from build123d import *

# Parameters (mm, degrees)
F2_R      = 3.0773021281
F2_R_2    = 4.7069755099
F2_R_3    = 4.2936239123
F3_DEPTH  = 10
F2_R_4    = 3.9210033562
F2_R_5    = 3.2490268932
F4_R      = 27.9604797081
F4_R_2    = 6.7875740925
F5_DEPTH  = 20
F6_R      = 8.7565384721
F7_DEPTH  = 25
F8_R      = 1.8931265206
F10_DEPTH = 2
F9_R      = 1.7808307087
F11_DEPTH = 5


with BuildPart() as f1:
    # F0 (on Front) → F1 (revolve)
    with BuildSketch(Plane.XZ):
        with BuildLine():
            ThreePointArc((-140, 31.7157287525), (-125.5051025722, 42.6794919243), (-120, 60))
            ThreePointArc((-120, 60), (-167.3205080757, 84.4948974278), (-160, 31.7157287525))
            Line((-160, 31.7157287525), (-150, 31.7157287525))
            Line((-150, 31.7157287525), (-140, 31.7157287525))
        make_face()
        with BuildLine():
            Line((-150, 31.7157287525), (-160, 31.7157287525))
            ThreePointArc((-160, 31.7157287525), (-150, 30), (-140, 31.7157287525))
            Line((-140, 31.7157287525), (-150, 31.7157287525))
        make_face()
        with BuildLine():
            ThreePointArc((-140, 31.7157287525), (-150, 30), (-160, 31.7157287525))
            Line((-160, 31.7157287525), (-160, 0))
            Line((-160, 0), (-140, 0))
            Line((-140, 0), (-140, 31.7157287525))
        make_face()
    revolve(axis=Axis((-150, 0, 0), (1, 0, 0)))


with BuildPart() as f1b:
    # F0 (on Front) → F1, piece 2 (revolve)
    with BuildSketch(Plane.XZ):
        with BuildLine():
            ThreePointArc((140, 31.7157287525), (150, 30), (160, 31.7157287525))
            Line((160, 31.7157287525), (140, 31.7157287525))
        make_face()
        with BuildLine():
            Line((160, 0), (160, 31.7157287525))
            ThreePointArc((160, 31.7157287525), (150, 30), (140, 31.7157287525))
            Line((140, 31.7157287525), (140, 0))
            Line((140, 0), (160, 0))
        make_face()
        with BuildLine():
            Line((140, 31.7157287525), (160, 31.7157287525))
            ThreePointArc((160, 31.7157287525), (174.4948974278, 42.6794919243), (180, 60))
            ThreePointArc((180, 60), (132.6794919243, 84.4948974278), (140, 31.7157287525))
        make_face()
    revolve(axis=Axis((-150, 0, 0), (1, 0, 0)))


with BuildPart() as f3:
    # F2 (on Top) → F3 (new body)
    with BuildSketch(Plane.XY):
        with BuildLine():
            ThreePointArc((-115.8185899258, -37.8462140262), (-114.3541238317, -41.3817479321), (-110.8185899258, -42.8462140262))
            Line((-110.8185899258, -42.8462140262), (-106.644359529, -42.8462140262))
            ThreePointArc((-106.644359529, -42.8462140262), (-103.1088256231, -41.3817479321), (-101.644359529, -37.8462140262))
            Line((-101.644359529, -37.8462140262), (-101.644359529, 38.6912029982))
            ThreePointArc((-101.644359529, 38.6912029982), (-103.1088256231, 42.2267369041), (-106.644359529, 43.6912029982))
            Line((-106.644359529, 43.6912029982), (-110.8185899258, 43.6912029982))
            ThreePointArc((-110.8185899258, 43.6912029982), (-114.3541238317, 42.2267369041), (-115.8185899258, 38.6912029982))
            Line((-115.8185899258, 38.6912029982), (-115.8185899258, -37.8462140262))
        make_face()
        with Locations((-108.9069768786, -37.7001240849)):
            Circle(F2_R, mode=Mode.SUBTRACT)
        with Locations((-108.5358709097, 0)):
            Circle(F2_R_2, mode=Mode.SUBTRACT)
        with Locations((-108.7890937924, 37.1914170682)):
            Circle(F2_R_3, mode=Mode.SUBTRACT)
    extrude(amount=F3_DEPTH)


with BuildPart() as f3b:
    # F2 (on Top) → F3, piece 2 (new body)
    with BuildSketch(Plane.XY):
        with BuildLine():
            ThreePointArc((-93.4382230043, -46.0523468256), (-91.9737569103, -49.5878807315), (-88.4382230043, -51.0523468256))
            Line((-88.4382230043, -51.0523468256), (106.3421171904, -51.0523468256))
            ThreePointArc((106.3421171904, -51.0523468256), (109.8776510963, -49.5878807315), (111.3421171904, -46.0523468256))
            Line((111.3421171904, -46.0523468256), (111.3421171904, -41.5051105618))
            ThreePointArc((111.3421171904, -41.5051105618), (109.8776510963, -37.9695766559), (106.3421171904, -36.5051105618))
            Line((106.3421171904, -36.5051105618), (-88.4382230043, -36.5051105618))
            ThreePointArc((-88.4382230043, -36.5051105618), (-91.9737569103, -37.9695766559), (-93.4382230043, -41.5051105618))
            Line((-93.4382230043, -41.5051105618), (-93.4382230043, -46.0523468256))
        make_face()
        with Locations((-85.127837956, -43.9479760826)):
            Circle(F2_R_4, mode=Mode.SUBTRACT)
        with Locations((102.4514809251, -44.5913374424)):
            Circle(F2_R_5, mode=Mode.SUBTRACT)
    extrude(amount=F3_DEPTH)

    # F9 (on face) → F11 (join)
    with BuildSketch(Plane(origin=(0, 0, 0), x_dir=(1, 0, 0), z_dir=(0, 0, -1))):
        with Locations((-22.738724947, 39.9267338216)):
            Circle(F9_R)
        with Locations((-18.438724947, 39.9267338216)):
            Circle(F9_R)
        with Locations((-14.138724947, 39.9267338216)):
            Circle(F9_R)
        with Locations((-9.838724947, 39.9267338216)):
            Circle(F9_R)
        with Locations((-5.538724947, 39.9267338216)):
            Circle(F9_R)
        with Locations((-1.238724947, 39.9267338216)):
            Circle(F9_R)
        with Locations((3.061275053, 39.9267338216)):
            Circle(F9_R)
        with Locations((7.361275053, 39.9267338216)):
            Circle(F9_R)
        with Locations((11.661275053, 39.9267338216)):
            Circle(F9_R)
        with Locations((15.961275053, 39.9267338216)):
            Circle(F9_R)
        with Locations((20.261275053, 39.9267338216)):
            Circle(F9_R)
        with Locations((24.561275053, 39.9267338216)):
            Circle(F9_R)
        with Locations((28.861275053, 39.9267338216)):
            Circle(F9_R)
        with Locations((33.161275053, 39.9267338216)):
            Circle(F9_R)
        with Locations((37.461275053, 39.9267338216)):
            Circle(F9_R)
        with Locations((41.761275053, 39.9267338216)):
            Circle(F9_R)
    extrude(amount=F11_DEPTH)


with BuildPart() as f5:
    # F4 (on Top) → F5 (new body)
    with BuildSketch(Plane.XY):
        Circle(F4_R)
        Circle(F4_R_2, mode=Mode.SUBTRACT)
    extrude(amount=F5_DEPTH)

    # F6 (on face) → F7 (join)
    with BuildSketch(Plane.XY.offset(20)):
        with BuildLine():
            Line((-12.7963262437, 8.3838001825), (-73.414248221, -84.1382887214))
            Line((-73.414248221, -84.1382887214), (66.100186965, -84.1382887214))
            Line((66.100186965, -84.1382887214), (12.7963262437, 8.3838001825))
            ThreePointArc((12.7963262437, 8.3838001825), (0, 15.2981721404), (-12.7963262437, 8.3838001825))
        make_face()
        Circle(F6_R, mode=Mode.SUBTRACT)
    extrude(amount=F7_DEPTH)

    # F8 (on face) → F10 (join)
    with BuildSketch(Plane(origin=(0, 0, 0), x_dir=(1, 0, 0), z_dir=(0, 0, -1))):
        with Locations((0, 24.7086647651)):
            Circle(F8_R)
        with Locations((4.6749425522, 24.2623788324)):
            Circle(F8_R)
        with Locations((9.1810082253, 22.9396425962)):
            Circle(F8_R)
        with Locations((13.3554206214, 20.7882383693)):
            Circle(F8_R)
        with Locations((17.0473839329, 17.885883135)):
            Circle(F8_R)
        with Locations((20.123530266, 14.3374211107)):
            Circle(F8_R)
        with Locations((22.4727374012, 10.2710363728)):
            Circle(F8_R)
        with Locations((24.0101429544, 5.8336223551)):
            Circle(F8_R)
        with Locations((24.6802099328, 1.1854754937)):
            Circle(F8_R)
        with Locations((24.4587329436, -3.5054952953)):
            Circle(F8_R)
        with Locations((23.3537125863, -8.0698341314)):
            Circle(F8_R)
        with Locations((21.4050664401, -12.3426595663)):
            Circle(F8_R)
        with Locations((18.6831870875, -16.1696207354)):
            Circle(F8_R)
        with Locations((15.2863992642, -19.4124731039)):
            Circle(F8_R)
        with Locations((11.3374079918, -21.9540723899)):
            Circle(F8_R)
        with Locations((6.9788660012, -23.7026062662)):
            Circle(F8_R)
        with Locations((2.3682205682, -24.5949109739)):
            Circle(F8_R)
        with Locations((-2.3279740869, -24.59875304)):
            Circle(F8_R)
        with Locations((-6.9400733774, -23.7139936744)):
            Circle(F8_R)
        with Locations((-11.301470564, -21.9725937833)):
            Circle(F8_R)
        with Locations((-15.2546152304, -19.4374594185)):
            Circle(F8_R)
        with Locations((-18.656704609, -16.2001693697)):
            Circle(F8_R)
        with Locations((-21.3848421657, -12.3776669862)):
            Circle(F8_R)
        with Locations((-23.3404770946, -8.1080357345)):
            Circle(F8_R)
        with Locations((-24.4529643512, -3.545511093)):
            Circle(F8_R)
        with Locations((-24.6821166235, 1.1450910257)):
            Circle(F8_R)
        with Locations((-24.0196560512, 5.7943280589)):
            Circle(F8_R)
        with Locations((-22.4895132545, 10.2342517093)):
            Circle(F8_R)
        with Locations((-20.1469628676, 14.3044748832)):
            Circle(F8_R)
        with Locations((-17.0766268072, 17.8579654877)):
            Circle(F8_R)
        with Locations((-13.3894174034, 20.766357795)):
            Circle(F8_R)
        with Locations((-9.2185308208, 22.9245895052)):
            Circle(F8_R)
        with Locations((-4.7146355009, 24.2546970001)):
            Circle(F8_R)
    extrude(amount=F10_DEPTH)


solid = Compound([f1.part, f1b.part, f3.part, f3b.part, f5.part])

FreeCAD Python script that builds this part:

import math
import FreeCAD as App
import Part
import Sketcher
Q = App.Units.Quantity

doc = App.newDocument("Part")
body = doc.addObject("PartDesign::Body", "Body")

# Sketch on XZ plane
sketch1 = doc.addObject("Sketcher::SketchObject", "Sketch")
body.addObject(sketch1)
sketch1.AttachmentSupport = (doc.XZ_Plane, [""])
sketch1.MapMode = "FlatFace"
sketch1.addGeometry([
    Part.ArcOfCircle(Part.Circle(App.Vector(-150, 60, 0), App.Vector(0, 0, 1), 30), math.radians(-70.528779), math.radians(0)),  # 0
    Part.ArcOfCircle(Part.Circle(App.Vector(-150, 60, 0), App.Vector(0, 0, 1), 30), math.radians(0), math.radians(250.528779)),  # 1
    Part.LineSegment(App.Vector(-160, 31.715729, 0), App.Vector(-160, 0, 0)),  # 2
    Part.LineSegment(App.Vector(-160, 0, 0), App.Vector(-140, 0, 0)),  # 3
    Part.LineSegment(App.Vector(-140, 0, 0), App.Vector(-140, 31.715729, 0)),  # 4
], False)
sketch1.addConstraint([
    Sketcher.Constraint("Tangent", 0, 2, 1, 1),
    Sketcher.Constraint("Coincident", 1, 2, 2, 1),
    Sketcher.Constraint("Coincident", 2, 2, 3, 1),
    Sketcher.Constraint("Coincident", 3, 2, 4, 1),
    Sketcher.Constraint("Coincident", 4, 2, 0, 1),
    Sketcher.Constraint("Vertical", 2),
    Sketcher.Constraint("Horizontal", 3),
    Sketcher.Constraint("Vertical", 4),
    Sketcher.Constraint("Equal", 0, 1),
    Sketcher.Constraint("PointOnObject", 2, 2, -1),
    Sketcher.Constraint("Horizontal", 1, 3, 0, 2),
    Sketcher.Constraint("Horizontal", 1, 2, 4, 2),
    Sketcher.Constraint("Radius", 0, Q("30 mm")),
    Sketcher.Constraint("DistanceX", 3, 1, 3, 2, Q("20 mm")),
    Sketcher.Constraint("DistanceX", 0, 3, -1, 1, Q("150 mm")),
    Sketcher.Constraint("DistanceY", -1, 1, 0, 3, Q("60 mm")),
])
revolution = doc.addObject("PartDesign::Revolution", "Revolution")
body.addObject(revolution)
revolution.Profile = sketch1
revolution.ReferenceAxis = (sketch1, ["H_Axis"])
revolution.Angle = 360
body2 = doc.addObject("PartDesign::Body", "Body001")

# Sketch on XZ plane
sketch2 = doc.addObject("Sketcher::SketchObject", "Sketch001")
body2.addObject(sketch2)
sketch2.AttachmentSupport = (doc.getObject("XZ_Plane001"), [""])
sketch2.MapMode = "FlatFace"
sketch2.addGeometry([
    Part.LineSegment(App.Vector(140, 31.715729, 0), App.Vector(140, 0, 0)),  # 0
    Part.LineSegment(App.Vector(140, 0, 0), App.Vector(160, 0, 0)),  # 1
    Part.LineSegment(App.Vector(160, 0, 0), App.Vector(160, 31.715729, 0)),  # 2
    Part.ArcOfCircle(Part.Circle(App.Vector(150, 60, 0), App.Vector(0, 0, 1), 30), math.radians(-70.528779), math.radians(0)),  # 3
    Part.ArcOfCircle(Part.Circle(App.Vector(150, 60, 0), App.Vector(0, 0, 1), 30), math.radians(0), math.radians(250.528779)),  # 4
], False)
sketch2.addConstraint([
    Sketcher.Constraint("Coincident", 0, 2, 1, 1),
    Sketcher.Constraint("Coincident", 1, 2, 2, 1),
    Sketcher.Constraint("Coincident", 2, 2, 3, 1),
    Sketcher.Constraint("Tangent", 3, 2, 4, 1),
    Sketcher.Constraint("Coincident", 4, 2, 0, 1),
    Sketcher.Constraint("Vertical", 0),
    Sketcher.Constraint("Horizontal", 1),
    Sketcher.Constraint("Vertical", 2),
    Sketcher.Constraint("Equal", 3, 4),
    Sketcher.Constraint("PointOnObject", 0, 2, -1),
    Sketcher.Constraint("Horizontal", 4, 3, 3, 2),
    Sketcher.Constraint("Horizontal", 2, 2, 4, 2),
    Sketcher.Constraint("Radius", 3, Q("30 mm")),
    Sketcher.Constraint("DistanceX", 1, 1, 1, 2, Q("20 mm")),
    Sketcher.Constraint("DistanceX", -1, 1, 3, 3, Q("150 mm")),
    Sketcher.Constraint("DistanceY", -1, 1, 3, 3, Q("60 mm")),
])
revolution2 = doc.addObject("PartDesign::Revolution", "Revolution001")
body2.addObject(revolution2)
revolution2.Profile = sketch2
revolution2.ReferenceAxis = (sketch2, ["H_Axis"])
revolution2.Angle = 360
body3 = doc.addObject("PartDesign::Body", "Body002")

# Sketch on XY plane
sketch3 = doc.addObject("Sketcher::SketchObject", "Sketch002")
body3.addObject(sketch3)
sketch3.AttachmentSupport = (doc.getObject("XY_Plane002"), [""])
sketch3.MapMode = "FlatFace"
sketch3.addGeometry([
    Part.ArcOfCircle(Part.Circle(App.Vector(-110.81859, -37.846214, 0), App.Vector(0, 0, 1), 5), math.radians(180), math.radians(270)),  # 0
    Part.LineSegment(App.Vector(-110.81859, -42.846214, 0), App.Vector(-106.64436, -42.846214, 0)),  # 1
    Part.ArcOfCircle(Part.Circle(App.Vector(-106.64436, -37.846214, 0), App.Vector(0, 0, 1), 5), math.radians(-90), math.radians(0)),  # 2
    Part.LineSegment(App.Vector(-101.64436, -37.846214, 0), App.Vector(-101.64436, 38.691203, 0)),  # 3
    Part.ArcOfCircle(Part.Circle(App.Vector(-106.64436, 38.691203, 0), App.Vector(0, 0, 1), 5), math.radians(0), math.radians(90)),  # 4
    Part.LineSegment(App.Vector(-106.64436, 43.691203, 0), App.Vector(-110.81859, 43.691203, 0)),  # 5
    Part.ArcOfCircle(Part.Circle(App.Vector(-110.81859, 38.691203, 0), App.Vector(0, 0, 1), 5), math.radians(90), math.radians(180)),  # 6
    Part.LineSegment(App.Vector(-115.81859, 38.691203, 0), App.Vector(-115.81859, -37.846214, 0)),  # 7
    Part.Circle(App.Vector(-108.906977, -37.700124, 0), App.Vector(0, 0, 1), 3.077302),  # 8
    Part.Circle(App.Vector(-108.535871, 0, 0), App.Vector(0, 0, 1), 4.706976),  # 9
    Part.Circle(App.Vector(-108.789094, 37.191417, 0), App.Vector(0, 0, 1), 4.293624),  # 10
], False)
sketch3.addConstraint([
    Sketcher.Constraint("Tangent", 0, 2, 1, 1),
    Sketcher.Constraint("Tangent", 1, 2, 2, 1),
    Sketcher.Constraint("Tangent", 2, 2, 3, 1),
    Sketcher.Constraint("Tangent", 3, 2, 4, 1),
    Sketcher.Constraint("Tangent", 4, 2, 5, 1),
    Sketcher.Constraint("Tangent", 5, 2, 6, 1),
    Sketcher.Constraint("Tangent", 6, 2, 7, 1),
    Sketcher.Constraint("Tangent", 7, 2, 0, 1),
    Sketcher.Constraint("Horizontal", 1),
    Sketcher.Constraint("Vertical", 3),
    Sketcher.Constraint("Horizontal", 5),
    Sketcher.Constraint("Vertical", 7),
    Sketcher.Constraint("Equal", 0, 2),
    Sketcher.Constraint("Equal", 2, 4),
    Sketcher.Constraint("Equal", 4, 6),
    Sketcher.Constraint("PointOnObject", 9, 3, -1),
    Sketcher.Constraint("Radius", 0, Q("5 mm")),
    Sketcher.Constraint("Diameter", 9, Q("9.413951 mm")),
    Sketcher.Constraint("Diameter", 8, Q("6.154604 mm")),
    Sketcher.Constraint("Diameter", 10, Q("8.587248 mm")),
    Sketcher.Constraint("DistanceX", 1, 1, 1, 2, Q("4.17423 mm")),
    Sketcher.Constraint("DistanceY", 3, 1, 3, 2, Q("76.537417 mm")),
    Sketcher.Constraint("DistanceX", 0, 3, -1, 1, Q("110.81859 mm")),
    Sketcher.Constraint("DistanceX", 9, 3, -1, 1, Q("108.535871 mm")),
    Sketcher.Constraint("DistanceY", 0, 3, 8, 3, Q("0.14609 mm")),
    Sketcher.Constraint("DistanceY", 8, 3, 10, 3, Q("74.891541 mm")),
    Sketcher.Constraint("DistanceY", 0, 3, -1, 1, Q("37.846214 mm")),
    Sketcher.Constraint("DistanceX", 8, 3, -1, 1, Q("108.906977 mm")),
    Sketcher.Constraint("DistanceX", 10, 3, -1, 1, Q("108.789094 mm")),
])
pad1 = doc.addObject("PartDesign::Pad", "Pad")
body3.addObject(pad1)
pad1.Profile = sketch3
pad1.Length = 10
body4 = doc.addObject("PartDesign::Body", "Body003")

# Sketch on XY plane
sketch4 = doc.addObject("Sketcher::SketchObject", "Sketch003")
body4.addObject(sketch4)
sketch4.AttachmentSupport = (doc.getObject("XY_Plane003"), [""])
sketch4.MapMode = "FlatFace"
sketch4.addGeometry([
    Part.ArcOfCircle(Part.Circle(App.Vector(-88.438223, -46.052347, 0), App.Vector(0, 0, 1), 5), math.radians(180), math.radians(270)),  # 0
    Part.LineSegment(App.Vector(-88.438223, -51.052347, 0), App.Vector(106.342117, -51.052347, 0)),  # 1
    Part.ArcOfCircle(Part.Circle(App.Vector(106.342117, -46.052347, 0), App.Vector(0, 0, 1), 5), math.radians(-90), math.radians(0)),  # 2
    Part.LineSegment(App.Vector(111.342117, -46.052347, 0), App.Vector(111.342117, -41.505111, 0)),  # 3
    Part.ArcOfCircle(Part.Circle(App.Vector(106.342117, -41.505111, 0), App.Vector(0, 0, 1), 5), math.radians(0), math.radians(90)),  # 4
    Part.LineSegment(App.Vector(106.342117, -36.505111, 0), App.Vector(-88.438223, -36.505111, 0)),  # 5
    Part.ArcOfCircle(Part.Circle(App.Vector(-88.438223, -41.505111, 0), App.Vector(0, 0, 1), 5), math.radians(90), math.radians(180)),  # 6
    Part.LineSegment(App.Vector(-93.438223, -41.505111, 0), App.Vector(-93.438223, -46.052347, 0)),  # 7
    Part.Circle(App.Vector(102.451481, -44.591337, 0), App.Vector(0, 0, 1), 3.249027),  # 8
    Part.Circle(App.Vector(-85.127838, -43.947976, 0), App.Vector(0, 0, 1), 3.921003),  # 9
], False)
sketch4.addConstraint([
    Sketcher.Constraint("Tangent", 0, 2, 1, 1),
    Sketcher.Constraint("Tangent", 1, 2, 2, 1),
    Sketcher.Constraint("Tangent", 2, 2, 3, 1),
    Sketcher.Constraint("Tangent", 3, 2, 4, 1),
    Sketcher.Constraint("Tangent", 4, 2, 5, 1),
    Sketcher.Constraint("Tangent", 5, 2, 6, 1),
    Sketcher.Constraint("Tangent", 6, 2, 7, 1),
    Sketcher.Constraint("Tangent", 7, 2, 0, 1),
    Sketcher.Constraint("Horizontal", 1),
    Sketcher.Constraint("Vertical", 3),
    Sketcher.Constraint("Horizontal", 5),
    Sketcher.Constraint("Vertical", 7),
    Sketcher.Constraint("Equal", 0, 2),
    Sketcher.Constraint("Equal", 2, 4),
    Sketcher.Constraint("Equal", 4, 6),
    Sketcher.Constraint("Radius", 0, Q("5 mm")),
    Sketcher.Constraint("Diameter", 8, Q("6.498054 mm")),
    Sketcher.Constraint("Diameter", 9, Q("7.842007 mm")),
    Sketcher.Constraint("DistanceX", 1, 1, 1, 2, Q("194.78034 mm")),
    Sketcher.Constraint("DistanceY", 3, 1, 3, 2, Q("4.547236 mm")),
    Sketcher.Constraint("DistanceY", 4, 3, -1, 1, Q("41.505111 mm")),
    Sketcher.Constraint("DistanceX", -1, 1, 8, 3, Q("102.451481 mm")),
    Sketcher.Constraint("DistanceY", 2, 3, 8, 3, Q("1.461009 mm")),
    Sketcher.Constraint("DistanceY", 0, 3, 9, 3, Q("2.104371 mm")),
    Sketcher.Constraint("DistanceX", 9, 3, 8, 3, Q("187.579319 mm")),
    Sketcher.Constraint("DistanceX", 0, 3, -1, 1, Q("88.438223 mm")),
])
pad2 = doc.addObject("PartDesign::Pad", "Pad001")
body4.addObject(pad2)
pad2.Profile = sketch4
pad2.Length = 10

# Sketch on XY plane
sketch5 = doc.addObject("Sketcher::SketchObject", "Sketch004")
body4.addObject(sketch5)
sketch5.AttachmentSupport = (doc.getObject("XY_Plane003"), [""])
sketch5.MapMode = "FlatFace"
sketch5.addGeometry([
    Part.Circle(App.Vector(-22.738725, -39.926734, 0), App.Vector(0, 0, 1), 1.780831),  # 0
    Part.Circle(App.Vector(-18.438725, -39.926734, 0), App.Vector(0, 0, 1), 1.780831),  # 1
    Part.Circle(App.Vector(-14.138725, -39.926734, 0), App.Vector(0, 0, 1), 1.780831),  # 2
    Part.Circle(App.Vector(-9.838725, -39.926734, 0), App.Vector(0, 0, 1), 1.780831),  # 3
    Part.Circle(App.Vector(-5.538725, -39.926734, 0), App.Vector(0, 0, 1), 1.780831),  # 4
    Part.Circle(App.Vector(-1.238725, -39.926734, 0), App.Vector(0, 0, 1), 1.780831),  # 5
    Part.Circle(App.Vector(3.061275, -39.926734, 0), App.Vector(0, 0, 1), 1.780831),  # 6
    Part.Circle(App.Vector(7.361275, -39.926734, 0), App.Vector(0, 0, 1), 1.780831),  # 7
    Part.Circle(App.Vector(11.661275, -39.926734, 0), App.Vector(0, 0, 1), 1.780831),  # 8
    Part.Circle(App.Vector(15.961275, -39.926734, 0), App.Vector(0, 0, 1), 1.780831),  # 9
    Part.Circle(App.Vector(20.261275, -39.926734, 0), App.Vector(0, 0, 1), 1.780831),  # 10
    Part.Circle(App.Vector(24.561275, -39.926734, 0), App.Vector(0, 0, 1), 1.780831),  # 11
    Part.Circle(App.Vector(28.861275, -39.926734, 0), App.Vector(0, 0, 1), 1.780831),  # 12
    Part.Circle(App.Vector(33.161275, -39.926734, 0), App.Vector(0, 0, 1), 1.780831),  # 13
    Part.Circle(App.Vector(37.461275, -39.926734, 0), App.Vector(0, 0, 1), 1.780831),  # 14
    Part.Circle(App.Vector(41.761275, -39.926734, 0), App.Vector(0, 0, 1), 1.780831),  # 15
], False)
sketch5.addConstraint([
    Sketcher.Constraint("Equal", 0, 1),
    Sketcher.Constraint("Equal", 1, 2),
    Sketcher.Constraint("Equal", 2, 3),
    Sketcher.Constraint("Equal", 3, 4),
    Sketcher.Constraint("Equal", 4, 5),
    Sketcher.Constraint("Equal", 5, 6),
    Sketcher.Constraint("Equal", 6, 7),
    Sketcher.Constraint("Equal", 7, 8),
    Sketcher.Constraint("Equal", 8, 9),
    Sketcher.Constraint("Equal", 9, 10),
    Sketcher.Constraint("Equal", 10, 11),
    Sketcher.Constraint("Equal", 11, 12),
    Sketcher.Constraint("Equal", 12, 13),
    Sketcher.Constraint("Equal", 13, 14),
    Sketcher.Constraint("Equal", 14, 15),
    Sketcher.Constraint("Horizontal", 0, 3, 1, 3),
    Sketcher.Constraint("Horizontal", 1, 3, 2, 3),
    Sketcher.Constraint("Horizontal", 2, 3, 3, 3),
    Sketcher.Constraint("Horizontal", 3, 3, 4, 3),
    Sketcher.Constraint("Horizontal", 4, 3, 5, 3),
    Sketcher.Constraint("Horizontal", 5, 3, 6, 3),
    Sketcher.Constraint("Horizontal", 6, 3, 7, 3),
    Sketcher.Constraint("Horizontal", 7, 3, 8, 3),
    Sketcher.Constraint("Horizontal", 8, 3, 9, 3),
    Sketcher.Constraint("Horizontal", 9, 3, 10, 3),
    Sketcher.Constraint("Horizontal", 10, 3, 11, 3),
    Sketcher.Constraint("Horizontal", 11, 3, 12, 3),
    Sketcher.Constraint("Horizontal", 12, 3, 13, 3),
    Sketcher.Constraint("Horizontal", 13, 3, 14, 3),
    Sketcher.Constraint("Horizontal", 14, 3, 15, 3),
    Sketcher.Constraint("DistanceX", 0, 3, 1, 3, Q("4.3 mm")),
    Sketcher.Constraint("DistanceX", 1, 3, 2, 3, Q("4.3 mm")),
    Sketcher.Constraint("DistanceX", 2, 3, 3, 3, Q("4.3 mm")),
    Sketcher.Constraint("DistanceX", 3, 3, 4, 3, Q("4.3 mm")),
    Sketcher.Constraint("DistanceX", 4, 3, 5, 3, Q("4.3 mm")),
    Sketcher.Constraint("DistanceX", 5, 3, 6, 3, Q("4.3 mm")),
    Sketcher.Constraint("DistanceX", 6, 3, 7, 3, Q("4.3 mm")),
    Sketcher.Constraint("DistanceX", 7, 3, 8, 3, Q("4.3 mm")),
    Sketcher.Constraint("DistanceX", 8, 3, 9, 3, Q("4.3 mm")),
    Sketcher.Constraint("DistanceX", 9, 3, 10, 3, Q("4.3 mm")),
    Sketcher.Constraint("DistanceX", 10, 3, 11, 3, Q("4.3 mm")),
    Sketcher.Constraint("DistanceX", 11, 3, 12, 3, Q("4.3 mm")),
    Sketcher.Constraint("DistanceX", 12, 3, 13, 3, Q("4.3 mm")),
    Sketcher.Constraint("DistanceX", 13, 3, 14, 3, Q("4.3 mm")),
    Sketcher.Constraint("DistanceX", 14, 3, 15, 3, Q("4.3 mm")),
    Sketcher.Constraint("Diameter", 0, Q("3.561661 mm")),
    Sketcher.Constraint("DistanceX", 0, 3, -1, 1, Q("22.738725 mm")),
    Sketcher.Constraint("DistanceY", 0, 3, -1, 1, Q("39.926734 mm")),
])
pad3 = doc.addObject("PartDesign::Pad", "Pad002")
body4.addObject(pad3)
pad3.Profile = sketch5
pad3.Length = 5
pad3.Reversed = True
body5 = doc.addObject("PartDesign::Body", "Body004")

# Sketch on XY plane
sketch6 = doc.addObject("Sketcher::SketchObject", "Sketch005")
body5.addObject(sketch6)
sketch6.AttachmentSupport = (doc.getObject("XY_Plane004"), [""])
sketch6.MapMode = "FlatFace"
sketch6.addGeometry([
    Part.Circle(App.Vector(0, 0, 0), App.Vector(0, 0, 1), 27.96048),
    Part.Circle(App.Vector(0, 0, 0), App.Vector(0, 0, 1), 6.787574),
], False)
sketch6.addConstraint([
    Sketcher.Constraint("Coincident", 0, 3, -1, 1),
    Sketcher.Constraint("Coincident", 1, 3, -1, 1),
    Sketcher.Constraint("Diameter", 0, Q("55.920959 mm")),
    Sketcher.Constraint("Diameter", 1, Q("13.575148 mm")),
])
pad4 = doc.addObject("PartDesign::Pad", "Pad003")
body5.addObject(pad4)
pad4.Profile = sketch6
pad4.Length = 20

# Sketch on XY plane
sketch7 = doc.addObject("Sketcher::SketchObject", "Sketch006")
body5.addObject(sketch7)
sketch7.AttachmentSupport = (doc.getObject("XY_Plane004"), [""])
sketch7.MapMode = "FlatFace"
sketch7.AttachmentOffset = App.Placement(App.Vector(0, 0, 20), App.Rotation())
sketch7.addGeometry([
    Part.LineSegment(App.Vector(-12.796326, 8.3838, 0), App.Vector(-73.414248, -84.138289, 0)),  # 0
    Part.LineSegment(App.Vector(-73.414248, -84.138289, 0), App.Vector(66.100187, -84.138289, 0)),  # 1
    Part.LineSegment(App.Vector(66.100187, -84.138289, 0), App.Vector(12.796326, 8.3838, 0)),  # 2
    Part.ArcOfCircle(Part.Circle(App.Vector(0, 0, 0), App.Vector(0, 0, 1), 15.298172), math.radians(33.231712), math.radians(146.768288)),  # 3
    Part.Circle(App.Vector(0, 0, 0), App.Vector(0, 0, 1), 8.756538),  # 4
], False)
sketch7.addConstraint([
    Sketcher.Constraint("Coincident", 0, 2, 1, 1),
    Sketcher.Constraint("Coincident", 1, 2, 2, 1),
    Sketcher.Constraint("Coincident", 2, 2, 3, 1),
    Sketcher.Constraint("Tangent", 3, 2, 0, 1),
    Sketcher.Constraint("Horizontal", 1),
    Sketcher.Constraint("Coincident", 3, 3, -1, 1),
    Sketcher.Constraint("Coincident", 4, 3, -1, 1),
    Sketcher.Constraint("Horizontal", 2, 2, 3, 2),
    Sketcher.Constraint("Diameter", 4, Q("17.513077 mm")),
    Sketcher.Constraint("Radius", 3, Q("15.298172 mm")),
    Sketcher.Constraint("DistanceY", -1, 1, 2, 2, Q("8.3838 mm")),
    Sketcher.Constraint("DistanceX", 1, 1, 1, 2, Q("139.514435 mm")),
    Sketcher.Constraint("DistanceX", 0, 2, -1, 1, Q("73.414248 mm")),
])
pad5 = doc.addObject("PartDesign::Pad", "Pad004")
body5.addObject(pad5)
pad5.Profile = sketch7
pad5.Length = 25

# Sketch on XY plane
sketch8 = doc.addObject("Sketcher::SketchObject", "Sketch007")
body5.addObject(sketch8)
sketch8.AttachmentSupport = (doc.getObject("XY_Plane004"), [""])
sketch8.MapMode = "FlatFace"
sketch8.addGeometry([
    Part.Circle(App.Vector(0, -24.708665, 0), App.Vector(0, 0, 1), 1.893127),  # 0
    Part.Circle(App.Vector(4.674943, -24.262379, 0), App.Vector(0, 0, 1), 1.893127),  # 1
    Part.Circle(App.Vector(9.181008, -22.939643, 0), App.Vector(0, 0, 1), 1.893127),  # 2
    Part.Circle(App.Vector(13.355421, -20.788238, 0), App.Vector(0, 0, 1), 1.893127),  # 3
    Part.Circle(App.Vector(17.047384, -17.885883, 0), App.Vector(0, 0, 1), 1.893127),  # 4
    Part.Circle(App.Vector(20.12353, -14.337421, 0), App.Vector(0, 0, 1), 1.893127),  # 5
    Part.Circle(App.Vector(22.472737, -10.271036, 0), App.Vector(0, 0, 1), 1.893127),  # 6
    Part.Circle(App.Vector(24.010143, -5.833622, 0), App.Vector(0, 0, 1), 1.893127),  # 7
    Part.Circle(App.Vector(24.68021, -1.185475, 0), App.Vector(0, 0, 1), 1.893127),  # 8
    Part.Circle(App.Vector(24.458733, 3.505495, 0), App.Vector(0, 0, 1), 1.893127),  # 9
    Part.Circle(App.Vector(23.353713, 8.069834, 0), App.Vector(0, 0, 1), 1.893127),  # 10
    Part.Circle(App.Vector(21.405066, 12.34266, 0), App.Vector(0, 0, 1), 1.893127),  # 11
    Part.Circle(App.Vector(18.683187, 16.169621, 0), App.Vector(0, 0, 1), 1.893127),  # 12
    Part.Circle(App.Vector(15.286399, 19.412473, 0), App.Vector(0, 0, 1), 1.893127),  # 13
    Part.Circle(App.Vector(11.337408, 21.954072, 0), App.Vector(0, 0, 1), 1.893127),  # 14
    Part.Circle(App.Vector(6.978866, 23.702606, 0), App.Vector(0, 0, 1), 1.893127),  # 15
    Part.Circle(App.Vector(2.368221, 24.594911, 0), App.Vector(0, 0, 1), 1.893127),  # 16
    Part.Circle(App.Vector(-2.327974, 24.598753, 0), App.Vector(0, 0, 1), 1.893127),  # 17
    Part.Circle(App.Vector(-6.940073, 23.713994, 0), App.Vector(0, 0, 1), 1.893127),  # 18
    Part.Circle(App.Vector(-11.301471, 21.972594, 0), App.Vector(0, 0, 1), 1.893127),  # 19
    Part.Circle(App.Vector(-15.254615, 19.437459, 0), App.Vector(0, 0, 1), 1.893127),  # 20
    Part.Circle(App.Vector(-18.656705, 16.200169, 0), App.Vector(0, 0, 1), 1.893127),  # 21
    Part.Circle(App.Vector(-21.384842, 12.377667, 0), App.Vector(0, 0, 1), 1.893127),  # 22
    Part.Circle(App.Vector(-23.340477, 8.108036, 0), App.Vector(0, 0, 1), 1.893127),  # 23
    Part.Circle(App.Vector(-24.452964, 3.545511, 0), App.Vector(0, 0, 1), 1.893127),  # 24
    Part.Circle(App.Vector(-24.682117, -1.145091, 0), App.Vector(0, 0, 1), 1.893127),  # 25
    Part.Circle(App.Vector(-24.019656, -5.794328, 0), App.Vector(0, 0, 1), 1.893127),  # 26
    Part.Circle(App.Vector(-22.489513, -10.234252, 0), App.Vector(0, 0, 1), 1.893127),  # 27
    Part.Circle(App.Vector(-20.146963, -14.304475, 0), App.Vector(0, 0, 1), 1.893127),  # 28
    Part.Circle(App.Vector(-17.076627, -17.857965, 0), App.Vector(0, 0, 1), 1.893127),  # 29
    Part.Circle(App.Vector(-13.389417, -20.766358, 0), App.Vector(0, 0, 1), 1.893127),  # 30
    Part.Circle(App.Vector(-9.218531, -22.92459, 0), App.Vector(0, 0, 1), 1.893127),  # 31
    Part.Circle(App.Vector(-4.714636, -24.254697, 0), App.Vector(0, 0, 1), 1.893127),  # 32
], False)
sketch8.addConstraint([
    Sketcher.Constraint("Equal", 0, 1),
    Sketcher.Constraint("Equal", 1, 2),
    Sketcher.Constraint("Equal", 2, 3),
    Sketcher.Constraint("Equal", 3, 4),
    Sketcher.Constraint("Equal", 4, 5),
    Sketcher.Constraint("Equal", 5, 6),
    Sketcher.Constraint("Equal", 6, 7),
    Sketcher.Constraint("Equal", 7, 8),
    Sketcher.Constraint("Equal", 8, 9),
    Sketcher.Constraint("Equal", 9, 10),
    Sketcher.Constraint("Equal", 10, 11),
    Sketcher.Constraint("Equal", 11, 12),
    Sketcher.Constraint("Equal", 12, 13),
    Sketcher.Constraint("Equal", 13, 14),
    Sketcher.Constraint("Equal", 14, 15),
    Sketcher.Constraint("Equal", 15, 16),
    Sketcher.Constraint("Equal", 16, 17),
    Sketcher.Constraint("Equal", 17, 18),
    Sketcher.Constraint("Equal", 18, 19),
    Sketcher.Constraint("Equal", 19, 20),
    Sketcher.Constraint("Equal", 20, 21),
    Sketcher.Constraint("Equal", 21, 22),
    Sketcher.Constraint("Equal", 22, 23),
    Sketcher.Constraint("Equal", 23, 24),
    Sketcher.Constraint("Equal", 24, 25),
    Sketcher.Constraint("Equal", 25, 26),
    Sketcher.Constraint("Equal", 26, 27),
    Sketcher.Constraint("Equal", 27, 28),
    Sketcher.Constraint("Equal", 28, 29),
    Sketcher.Constraint("Equal", 29, 30),
    Sketcher.Constraint("Equal", 30, 31),
    Sketcher.Constraint("Equal", 31, 32),
    Sketcher.Constraint("PointOnObject", 0, 3, -2),
    Sketcher.Constraint("Diameter", 0, Q("3.786253 mm")),
    Sketcher.Constraint("DistanceX", 24, 3, 28, 3, Q("4.306001 mm")),
    Sketcher.Constraint("DistanceX", -1, 1, 13, 3, Q("15.286399 mm")),
    Sketcher.Constraint("DistanceY", 3, 3, 6, 3, Q("10.517202 mm")),
    Sketcher.Constraint("DistanceY", 5, 3, 7, 3, Q("8.503799 mm")),
    Sketcher.Constraint("DistanceY", 13, 3, 14, 3, Q("2.541599 mm")),
    Sketcher.Constraint("DistanceX", 15, 3, 11, 3, Q("14.4262 mm")),
    Sketcher.Constraint("DistanceX", 18, 3, 17, 3, Q("4.612099 mm")),
    Sketcher.Constraint("DistanceY", 19, 3, 18, 3, Q("1.7414 mm")),
    Sketcher.Constraint("DistanceX", 25, 3, 20, 3, Q("9.427501 mm")),
    Sketcher.Constraint("DistanceY", 0, 3, 29, 3, Q("6.850699 mm")),
    Sketcher.Constraint("DistanceY", 1, 3, -1, 1, Q("24.262379 mm")),
    Sketcher.Constraint("DistanceX", -1, 1, 2, 3, Q("9.181008 mm")),
    Sketcher.Constraint("DistanceX", -1, 1, 3, 3, Q("13.355421 mm")),
    Sketcher.Constraint("DistanceY", 3, 3, -1, 1, Q("20.788238 mm")),
    Sketcher.Constraint("DistanceX", -1, 1, 5, 3, Q("20.12353 mm")),
    Sketcher.Constraint("DistanceY", 5, 3, -1, 1, Q("14.337421 mm")),
    Sketcher.Constraint("DistanceX", -1, 1, 8, 3, Q("24.68021 mm")),
    Sketcher.Constraint("DistanceY", -1, 1, 11, 3, Q("12.34266 mm")),
    Sketcher.Constraint("DistanceY", -1, 1, 12, 3, Q("16.169621 mm")),
    Sketcher.Constraint("DistanceX", -1, 1, 16, 3, Q("2.368221 mm")),
    Sketcher.Constraint("DistanceY", -1, 1, 16, 3, Q("24.594911 mm")),
    Sketcher.Constraint("DistanceX", 19, 3, -1, 1, Q("11.301471 mm")),
    Sketcher.Constraint("DistanceY", -1, 1, 20, 3, Q("19.437459 mm")),
    Sketcher.Constraint("DistanceY", -1, 1, 21, 3, Q("16.200169 mm")),
    Sketcher.Constraint("DistanceY", -1, 1, 24, 3, Q("3.545511 mm")),
    Sketcher.Constraint("DistanceY", 25, 3, -1, 1, Q("1.145091 mm")),
    Sketcher.Constraint("DistanceY", 26, 3, -1, 1, Q("5.794328 mm")),
    Sketcher.Constraint("DistanceY", 27, 3, -1, 1, Q("10.234252 mm")),
    Sketcher.Constraint("DistanceX", 31, 3, -1, 1, Q("9.218531 mm")),
    Sketcher.Constraint("DistanceY", 31, 3, -1, 1, Q("22.92459 mm")),
    Sketcher.Constraint("DistanceX", 1, 3, 3, 3, Q("8.680478 mm")),
    Sketcher.Constraint("DistanceY", 2, 3, 4, 3, Q("5.053759 mm")),
    Sketcher.Constraint("DistanceX", 1, 3, 4, 3, Q("12.372441 mm")),
    Sketcher.Constraint("DistanceY", 0, 3, 4, 3, Q("6.822782 mm")),
    Sketcher.Constraint("DistanceY", 2, 3, 5, 3, Q("8.602221 mm")),
    Sketcher.Constraint("DistanceX", 2, 3, 6, 3, Q("13.291729 mm")),
    Sketcher.Constraint("DistanceX", 4, 3, 7, 3, Q("6.962759 mm")),
    Sketcher.Constraint("DistanceY", 6, 3, 8, 3, Q("9.085561 mm")),
    Sketcher.Constraint("DistanceY", 8, 3, 9, 3, Q("4.690971 mm")),
    Sketcher.Constraint("DistanceX", 7, 3, 9, 3, Q("0.44859 mm")),
    Sketcher.Constraint("DistanceX", 10, 3, 9, 3, Q("1.10502 mm")),
    Sketcher.Constraint("DistanceY", 9, 3, 10, 3, Q("4.564339 mm")),
    Sketcher.Constraint("DistanceX", 11, 3, 6, 3, Q("1.067671 mm")),
    Sketcher.Constraint("DistanceX", 12, 3, 11, 3, Q("2.721879 mm")),
    Sketcher.Constraint("DistanceY", 10, 3, 13, 3, Q("11.342639 mm")),
    Sketcher.Constraint("DistanceX", 14, 3, 13, 3, Q("3.948991 mm")),
    Sketcher.Constraint("DistanceX", 17, 3, 15, 3, Q("9.30684 mm")),
    Sketcher.Constraint("DistanceY", 14, 3, 17, 3, Q("2.644681 mm")),
    Sketcher.Constraint("DistanceY", 18, 3, 17, 3, Q("0.884759 mm")),
    Sketcher.Constraint("DistanceX", 20, 3, 18, 3, Q("8.314542 mm")),
    Sketcher.Constraint("DistanceX", 21, 3, 20, 3, Q("3.402089 mm")),
    Sketcher.Constraint("DistanceX", 22, 3, 19, 3, Q("10.083372 mm")),
    Sketcher.Constraint("DistanceY", 23, 3, 22, 3, Q("4.269631 mm")),
    Sketcher.Constraint("DistanceX", 23, 3, 20, 3, Q("8.085862 mm")),
    Sketcher.Constraint("DistanceY", 23, 3, 19, 3, Q("13.864558 mm")),
    Sketcher.Constraint("DistanceX", 24, 3, 21, 3, Q("5.79626 mm")),
    Sketcher.Constraint("DistanceX", 25, 3, 26, 3, Q("0.662461 mm")),
    Sketcher.Constraint("DistanceX", 24, 3, 27, 3, Q("1.963451 mm")),
    Sketcher.Constraint("DistanceY", 28, 3, 23, 3, Q("22.412511 mm")),
    Sketcher.Constraint("DistanceX", 26, 3, 29, 3, Q("6.943029 mm")),
    Sketcher.Constraint("DistanceX", 29, 3, 30, 3, Q("3.687209 mm")),
    Sketcher.Constraint("DistanceY", 30, 3, 26, 3, Q("14.97203 mm")),
    Sketcher.Constraint("DistanceX", 30, 3, 32, 3, Q("8.674782 mm")),
    Sketcher.Constraint("DistanceY", 32, 3, 30, 3, Q("3.488339 mm")),
    Sketcher.Constraint("DistanceY", -1, 1, 15, 3, Q("23.702606 mm")),
])
pad6 = doc.addObject("PartDesign::Pad", "Pad005")
body5.addObject(pad6)
pad6.Profile = sketch8
pad6.Length = 2
pad6.Reversed = True

doc.recompute()
